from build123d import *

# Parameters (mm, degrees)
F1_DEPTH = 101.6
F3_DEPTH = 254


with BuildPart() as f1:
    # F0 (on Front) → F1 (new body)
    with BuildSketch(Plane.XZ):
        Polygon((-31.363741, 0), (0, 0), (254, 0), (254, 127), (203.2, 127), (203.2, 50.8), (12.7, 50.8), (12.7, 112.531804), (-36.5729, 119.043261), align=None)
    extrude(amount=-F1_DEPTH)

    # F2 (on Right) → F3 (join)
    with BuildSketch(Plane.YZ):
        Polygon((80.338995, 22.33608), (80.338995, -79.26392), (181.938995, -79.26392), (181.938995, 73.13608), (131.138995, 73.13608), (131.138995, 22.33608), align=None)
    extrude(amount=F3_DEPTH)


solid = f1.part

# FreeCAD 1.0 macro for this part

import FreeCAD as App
import Part
import Sketcher

V = App.Vector
Q = App.Units.Quantity

doc = App.newDocument("Part")
body = doc.addObject("PartDesign::Body", "Body")

# Sketch on XZ plane
sketch1 = body.newObject("Sketcher::SketchObject", "Sketch")
sketch1.AttachmentSupport = (doc.getObject("XZ_Plane"), [""])
sketch1.MapMode = "FlatFace"
sketch1.addGeometry([
    Part.LineSegment(V(-31, 0, 0), V(254, 0, 0)),  # 0
    Part.LineSegment(V(254, 0, 0), V(254, 127, 0)),  # 1
    Part.LineSegment(V(254, 127, 0), V(203, 127, 0)),  # 2
    Part.LineSegment(V(203, 127, 0), V(203, 51, 0)),  # 3
    Part.LineSegment(V(203, 51, 0), V(13, 51, 0)),  # 4
    Part.LineSegment(V(13, 51, 0), V(13, 113, 0)),  # 5
    Part.LineSegment(V(13, 113, 0), V(-37, 119, 0)),  # 6
    Part.LineSegment(V(-37, 119, 0), V(-31, 0, 0)),  # 7
], False)
sketch1.addConstraint([
    Sketcher.Constraint("Coincident", 0, 2, 1, 1),
    Sketcher.Constraint("Coincident", 1, 2, 2, 1),
    Sketcher.Constraint("Coincident", 2, 2, 3, 1),
    Sketcher.Constraint("Coincident", 3, 2, 4, 1),
    Sketcher.Constraint("Coincident", 4, 2, 5, 1),
    Sketcher.Constraint("Coincident", 5, 2, 6, 1),
    Sketcher.Constraint("Coincident", 6, 2, 7, 1),
    Sketcher.Constraint("Coincident", 7, 2, 0, 1),
    Sketcher.Constraint("Horizontal", 0),
    Sketcher.Constraint("Vertical", 1),
    Sketcher.Constraint("Horizontal", 2),
    Sketcher.Constraint("Vertical", 3),
    Sketcher.Constraint("Horizontal", 4),
    Sketcher.Constraint("Vertical", 5),
    Sketcher.Constraint("PointOnObject", 0, 2, -1),
    Sketcher.Constraint("DistanceX", 2, 2, 2, 1, Q("2 in")),
    Sketcher.Constraint("DistanceY", 1, 1, 1, 2, Q("5 in")),
    Sketcher.Constraint("DistanceY", 3, 2, 3, 1, Q("3 in")),
    Sketcher.Constraint("DistanceX", 4, 2, 4, 1, Q("7.5 in")),
    Sketcher.Constraint("DistanceX", -1, 1, 0, 2, Q("10 in")),
    Sketcher.Constraint("DistanceX", 0, 1, 0, 2, 285.363741),
    Sketcher.Constraint("DistanceX", 6, 2, -1, 1, 36.5729),
    Sketcher.Constraint("Distance", 7, 119.157179),
    Sketcher.Constraint("DistanceY", 5, 1, 5, 2, 61.731804),
])
pad1 = body.newObject("PartDesign::Pad", "Pad")
pad1.Profile = sketch1
pad1.Length = Q("4 in")
pad1.Reversed = True

# Sketch on YZ plane
sketch2 = body.newObject("Sketcher::SketchObject", "Sketch001")
sketch2.AttachmentSupport = (doc.getObject("YZ_Plane"), [""])
sketch2.MapMode = "FlatFace"
sketch2.addGeometry([
    Part.LineSegment(V(80, 22, 0), V(80, -79, 0)),  # 0
    Part.LineSegment(V(80, -79, 0), V(182, -79, 0)),  # 1
    Part.LineSegment(V(182, -79, 0), V(182, 73, 0)),  # 2
    Part.LineSegment(V(182, 73, 0), V(131, 73, 0)),  # 3
    Part.LineSegment(V(131, 73, 0), V(131, 22, 0)),  # 4
    Part.LineSegment(V(131, 22, 0), V(80, 22, 0)),  # 5
], False)
sketch2.addConstraint([
    Sketcher.Constraint("Coincident", 0, 2, 1, 1),
    Sketcher.Constraint("Coincident", 1, 2, 2, 1),
    Sketcher.Constraint("Coincident", 2, 2, 3, 1),
    Sketcher.Constraint("Coincident", 3, 2, 4, 1),
    Sketcher.Constraint("Coincident", 4, 2, 5, 1),
    Sketcher.Constraint("Coincident", 5, 2, 0, 1),
    Sketcher.Constraint("Vertical", 0),
    Sketcher.Constraint("Horizontal", 1),
    Sketcher.Constraint("Vertical", 2),
    Sketcher.Constraint("Horizontal", 3),
    Sketcher.Constraint("Vertical", 4),
    Sketcher.Constraint("Horizontal", 5),
    Sketcher.Constraint("Equal", 3, 5),
    Sketcher.Constraint("Equal", 1, 0),
    Sketcher.Constraint("Equal", 5, 4),
    Sketcher.Constraint("DistanceX", 1, 1, 1, 2, Q("4 in")),
    Sketcher.Constraint("DistanceY", 0, 2, -1, 1, 79.26392),
    Sketcher.Constraint("DistanceX", -1, 1, 0, 2, 80.338995),
])
pad2 = body.newObject("PartDesign::Pad", "Pad001")
pad2.Profile = sketch2
pad2.Length = Q("10 in")

doc.recompute()
